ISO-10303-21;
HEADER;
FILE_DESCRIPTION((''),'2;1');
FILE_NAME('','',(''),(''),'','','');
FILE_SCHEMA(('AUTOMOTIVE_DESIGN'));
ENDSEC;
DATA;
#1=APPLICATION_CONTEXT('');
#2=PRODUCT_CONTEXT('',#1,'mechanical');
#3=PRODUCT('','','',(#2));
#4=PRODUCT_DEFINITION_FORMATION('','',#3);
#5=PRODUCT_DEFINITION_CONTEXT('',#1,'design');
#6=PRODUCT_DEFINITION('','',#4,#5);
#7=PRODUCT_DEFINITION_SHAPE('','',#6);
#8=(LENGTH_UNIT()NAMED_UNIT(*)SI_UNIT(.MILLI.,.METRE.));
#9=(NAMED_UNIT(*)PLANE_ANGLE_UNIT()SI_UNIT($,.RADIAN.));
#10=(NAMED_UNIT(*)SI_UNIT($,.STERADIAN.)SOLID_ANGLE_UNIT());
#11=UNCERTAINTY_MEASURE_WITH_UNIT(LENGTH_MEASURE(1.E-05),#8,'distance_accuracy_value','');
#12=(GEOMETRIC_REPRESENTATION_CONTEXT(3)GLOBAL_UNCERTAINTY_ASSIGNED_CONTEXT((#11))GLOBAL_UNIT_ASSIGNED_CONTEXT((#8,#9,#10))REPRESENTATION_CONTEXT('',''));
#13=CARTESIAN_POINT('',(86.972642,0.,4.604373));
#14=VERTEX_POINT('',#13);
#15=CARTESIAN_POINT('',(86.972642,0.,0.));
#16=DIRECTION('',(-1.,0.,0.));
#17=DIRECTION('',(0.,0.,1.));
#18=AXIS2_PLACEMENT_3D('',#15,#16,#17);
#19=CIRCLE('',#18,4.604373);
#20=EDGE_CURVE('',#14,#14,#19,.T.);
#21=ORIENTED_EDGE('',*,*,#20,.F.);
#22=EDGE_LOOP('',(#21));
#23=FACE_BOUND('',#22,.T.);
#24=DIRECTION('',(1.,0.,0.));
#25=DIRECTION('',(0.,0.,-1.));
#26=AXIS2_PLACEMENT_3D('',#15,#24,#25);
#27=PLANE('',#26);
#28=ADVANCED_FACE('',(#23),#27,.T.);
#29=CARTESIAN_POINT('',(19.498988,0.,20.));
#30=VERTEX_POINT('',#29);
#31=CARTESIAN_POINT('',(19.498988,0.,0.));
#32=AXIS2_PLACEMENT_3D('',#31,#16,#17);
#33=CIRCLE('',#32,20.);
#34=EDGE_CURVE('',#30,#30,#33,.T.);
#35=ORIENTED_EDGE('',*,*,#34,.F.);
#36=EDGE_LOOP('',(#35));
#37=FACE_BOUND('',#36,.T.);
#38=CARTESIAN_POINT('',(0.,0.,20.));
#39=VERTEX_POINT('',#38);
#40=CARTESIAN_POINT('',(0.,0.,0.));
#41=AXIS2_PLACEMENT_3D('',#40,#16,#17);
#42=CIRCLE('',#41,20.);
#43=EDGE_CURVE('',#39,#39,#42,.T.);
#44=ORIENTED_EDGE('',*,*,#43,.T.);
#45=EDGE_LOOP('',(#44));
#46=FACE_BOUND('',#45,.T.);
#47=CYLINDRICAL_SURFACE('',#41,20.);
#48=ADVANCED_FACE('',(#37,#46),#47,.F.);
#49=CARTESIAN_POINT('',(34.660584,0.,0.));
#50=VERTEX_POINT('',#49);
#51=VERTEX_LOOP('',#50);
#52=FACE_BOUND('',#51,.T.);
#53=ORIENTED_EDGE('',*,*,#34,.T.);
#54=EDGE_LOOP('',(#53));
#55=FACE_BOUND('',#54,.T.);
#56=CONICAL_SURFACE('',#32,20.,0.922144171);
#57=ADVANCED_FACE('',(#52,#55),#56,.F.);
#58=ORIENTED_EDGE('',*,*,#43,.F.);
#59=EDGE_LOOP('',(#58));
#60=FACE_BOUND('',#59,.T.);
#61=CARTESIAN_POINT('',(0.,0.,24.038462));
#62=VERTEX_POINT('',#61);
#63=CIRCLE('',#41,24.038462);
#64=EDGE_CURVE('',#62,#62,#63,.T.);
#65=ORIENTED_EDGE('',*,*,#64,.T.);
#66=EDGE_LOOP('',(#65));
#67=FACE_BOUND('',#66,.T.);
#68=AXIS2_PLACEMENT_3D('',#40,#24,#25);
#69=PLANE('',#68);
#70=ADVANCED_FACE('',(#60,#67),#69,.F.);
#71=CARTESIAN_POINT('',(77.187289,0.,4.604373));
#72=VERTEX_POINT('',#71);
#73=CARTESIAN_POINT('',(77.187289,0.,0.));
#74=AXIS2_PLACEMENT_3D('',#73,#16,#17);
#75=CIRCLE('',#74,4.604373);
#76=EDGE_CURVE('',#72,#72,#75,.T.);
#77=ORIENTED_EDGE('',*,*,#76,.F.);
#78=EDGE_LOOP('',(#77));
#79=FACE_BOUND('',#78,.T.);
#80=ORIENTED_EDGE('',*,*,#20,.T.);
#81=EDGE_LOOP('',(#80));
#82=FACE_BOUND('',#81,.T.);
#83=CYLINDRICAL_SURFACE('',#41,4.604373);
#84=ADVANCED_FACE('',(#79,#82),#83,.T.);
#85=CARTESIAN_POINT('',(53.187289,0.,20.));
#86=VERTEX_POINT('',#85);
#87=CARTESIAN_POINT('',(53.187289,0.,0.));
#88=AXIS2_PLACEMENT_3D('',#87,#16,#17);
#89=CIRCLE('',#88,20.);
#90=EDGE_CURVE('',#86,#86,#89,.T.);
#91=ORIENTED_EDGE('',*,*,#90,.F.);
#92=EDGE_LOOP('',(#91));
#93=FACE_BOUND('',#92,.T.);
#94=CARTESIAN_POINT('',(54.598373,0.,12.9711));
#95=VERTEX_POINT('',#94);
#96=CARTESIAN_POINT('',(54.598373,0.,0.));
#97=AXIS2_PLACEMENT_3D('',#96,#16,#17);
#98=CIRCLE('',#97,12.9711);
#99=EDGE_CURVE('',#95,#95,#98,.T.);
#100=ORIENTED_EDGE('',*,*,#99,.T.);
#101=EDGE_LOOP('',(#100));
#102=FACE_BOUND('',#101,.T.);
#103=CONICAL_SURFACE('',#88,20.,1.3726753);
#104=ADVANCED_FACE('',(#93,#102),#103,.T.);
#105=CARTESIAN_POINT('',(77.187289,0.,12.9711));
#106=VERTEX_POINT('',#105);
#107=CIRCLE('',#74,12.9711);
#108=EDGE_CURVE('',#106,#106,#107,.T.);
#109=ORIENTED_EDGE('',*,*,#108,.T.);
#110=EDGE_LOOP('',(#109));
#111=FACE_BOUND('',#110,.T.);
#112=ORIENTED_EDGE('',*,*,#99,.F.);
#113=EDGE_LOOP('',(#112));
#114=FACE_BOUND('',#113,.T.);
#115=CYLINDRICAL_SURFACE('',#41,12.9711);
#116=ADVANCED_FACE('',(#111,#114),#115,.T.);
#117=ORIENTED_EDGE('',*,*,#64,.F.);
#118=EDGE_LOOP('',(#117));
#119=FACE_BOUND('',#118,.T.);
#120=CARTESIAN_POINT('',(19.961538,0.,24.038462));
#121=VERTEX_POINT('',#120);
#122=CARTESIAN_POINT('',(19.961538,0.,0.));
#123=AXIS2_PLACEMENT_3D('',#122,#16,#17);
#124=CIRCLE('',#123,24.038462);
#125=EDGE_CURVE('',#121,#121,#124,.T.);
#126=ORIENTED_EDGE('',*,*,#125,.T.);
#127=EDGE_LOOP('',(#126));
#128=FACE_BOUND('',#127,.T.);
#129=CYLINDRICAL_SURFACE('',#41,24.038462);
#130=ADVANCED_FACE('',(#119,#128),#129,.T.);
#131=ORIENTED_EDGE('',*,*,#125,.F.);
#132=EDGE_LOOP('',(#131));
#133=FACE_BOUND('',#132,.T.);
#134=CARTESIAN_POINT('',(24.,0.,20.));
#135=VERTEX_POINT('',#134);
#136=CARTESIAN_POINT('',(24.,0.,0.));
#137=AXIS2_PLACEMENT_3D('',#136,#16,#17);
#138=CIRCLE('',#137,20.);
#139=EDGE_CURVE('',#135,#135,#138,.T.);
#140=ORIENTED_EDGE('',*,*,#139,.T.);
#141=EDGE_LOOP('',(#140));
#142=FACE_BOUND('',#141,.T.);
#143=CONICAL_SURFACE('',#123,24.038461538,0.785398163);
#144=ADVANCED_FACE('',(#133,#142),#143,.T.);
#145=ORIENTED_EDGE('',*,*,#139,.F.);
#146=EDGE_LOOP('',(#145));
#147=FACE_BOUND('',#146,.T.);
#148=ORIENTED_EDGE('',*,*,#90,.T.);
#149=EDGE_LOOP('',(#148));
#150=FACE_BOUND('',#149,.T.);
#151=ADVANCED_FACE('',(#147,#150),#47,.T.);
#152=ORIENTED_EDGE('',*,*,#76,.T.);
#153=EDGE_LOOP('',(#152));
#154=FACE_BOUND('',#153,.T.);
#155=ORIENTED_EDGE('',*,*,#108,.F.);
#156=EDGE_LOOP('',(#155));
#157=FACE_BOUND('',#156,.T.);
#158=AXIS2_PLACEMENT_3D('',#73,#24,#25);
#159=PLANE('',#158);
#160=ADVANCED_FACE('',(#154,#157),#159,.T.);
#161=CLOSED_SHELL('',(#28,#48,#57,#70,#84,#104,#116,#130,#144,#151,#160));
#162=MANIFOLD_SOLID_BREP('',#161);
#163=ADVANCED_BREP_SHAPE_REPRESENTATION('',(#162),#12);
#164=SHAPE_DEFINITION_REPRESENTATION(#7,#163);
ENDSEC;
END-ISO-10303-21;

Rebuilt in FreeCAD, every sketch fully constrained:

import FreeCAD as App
import Part
import Sketcher
from FreeCAD import Vector
Q = App.Units.Quantity


def add_polygon(sketch, points):
    """Adds a closed chain of lines whose ends are joined by coincident constraints."""
    first, n = sketch.GeometryCount, len(points)
    for a, b in zip(points, points[1:] + points[:1]):
        sketch.addGeometry(Part.LineSegment(App.Vector(*a, 0), App.Vector(*b, 0)), False)
    for i in range(n):
        sketch.addConstraint(Sketcher.Constraint("Coincident", first + i, 2, first + (i + 1) % n, 1))

doc = App.newDocument("Part")
params = doc.addObject("Spreadsheet::Sheet", "Params")
for row, (alias, value) in enumerate([
    ("revolution_angle", "360 deg"),
], start=1):
    params.set(f"A{row}", alias)
    params.set(f"B{row}", "=" + value)
    params.setAlias(f"B{row}", alias)

body = doc.addObject("PartDesign::Body", "Body")

sketch1 = doc.addObject("Sketcher::SketchObject", "Sketch")
body.addObject(sketch1)
sketch1.AttachmentSupport = (doc.XY_Plane, [""])
sketch1.MapMode = "FlatFace"
add_polygon(sketch1, [(19.961538, 24.038462), (0, 24.038462), (0, 20), (19.498988, 20), (34.660584, 0), (86.972642, 0), (86.972642, 4.604373), (77.187289, 4.604373), (77.187289, 12.9711), (54.598373, 12.9711), (53.187289, 20), (24, 20)])
sketch1.addConstraint(Sketcher.Constraint("Horizontal", 0))
sketch1.addConstraint(Sketcher.Constraint("Vertical", 1))
sketch1.addConstraint(Sketcher.Constraint("Horizontal", 2))
sketch1.addConstraint(Sketcher.Constraint("Horizontal", 4))
sketch1.addConstraint(Sketcher.Constraint("Vertical", 5))
sketch1.addConstraint(Sketcher.Constraint("Horizontal", 6))
sketch1.addConstraint(Sketcher.Constraint("Vertical", 7))
sketch1.addConstraint(Sketcher.Constraint("Horizontal", 8))
sketch1.addConstraint(Sketcher.Constraint("Horizontal", 10))
sketch1.addConstraint(Sketcher.Constraint("PointOnObject", 0, 2, -2))
sketch1.addConstraint(Sketcher.Constraint("PointOnObject", 3, 2, -1))
sketch1.addConstraint(Sketcher.Constraint("Horizontal", 2, 2, 9, 2))
sketch1.addConstraint(Sketcher.Constraint("Angle", 11, Q("135 deg")))
sketch1.addConstraint(Sketcher.Constraint("DistanceY", -1, 1, 1, 2, Q("20 mm")))
sketch1.addConstraint(Sketcher.Constraint("DistanceX", -1, 1, 10, 2, Q("24 mm")))
sketch1.addConstraint(Sketcher.Constraint("DistanceX", 9, 2, 7, 2, Q("24 mm")))
sketch1.addConstraint(Sketcher.Constraint("DistanceX", 0, 2, 0, 1, Q("19.961538 mm")))
sketch1.addConstraint(Sketcher.Constraint("DistanceX", 4, 1, 4, 2, Q("52.312058 mm")))
sketch1.addConstraint(Sketcher.Constraint("DistanceX", 10, 2, 10, 1, Q("29.187289 mm")))
sketch1.addConstraint(Sketcher.Constraint("DistanceY", -1, 1, 7, 2, Q("12.9711 mm")))
sketch1.addConstraint(Sketcher.Constraint("DistanceX", 2, 2, 6, 2, Q("57.688301 mm")))
sketch1.addConstraint(Sketcher.Constraint("Distance", 3, Q("25.097291 mm")))
sketch1.addConstraint(Sketcher.Constraint("Distance", 9, Q("7.169141 mm")))
sketch1.addConstraint(Sketcher.Constraint("DistanceY", 5, 1, 5, 2, Q("4.604373 mm")))
revolution = doc.addObject("PartDesign::Revolution", "Revolution")
body.addObject(revolution)
revolution.Profile = sketch1
revolution.ReferenceAxis = (sketch1, ["H_Axis"])
revolution.setExpression("Angle", "Params.revolution_angle")

doc.recompute()
